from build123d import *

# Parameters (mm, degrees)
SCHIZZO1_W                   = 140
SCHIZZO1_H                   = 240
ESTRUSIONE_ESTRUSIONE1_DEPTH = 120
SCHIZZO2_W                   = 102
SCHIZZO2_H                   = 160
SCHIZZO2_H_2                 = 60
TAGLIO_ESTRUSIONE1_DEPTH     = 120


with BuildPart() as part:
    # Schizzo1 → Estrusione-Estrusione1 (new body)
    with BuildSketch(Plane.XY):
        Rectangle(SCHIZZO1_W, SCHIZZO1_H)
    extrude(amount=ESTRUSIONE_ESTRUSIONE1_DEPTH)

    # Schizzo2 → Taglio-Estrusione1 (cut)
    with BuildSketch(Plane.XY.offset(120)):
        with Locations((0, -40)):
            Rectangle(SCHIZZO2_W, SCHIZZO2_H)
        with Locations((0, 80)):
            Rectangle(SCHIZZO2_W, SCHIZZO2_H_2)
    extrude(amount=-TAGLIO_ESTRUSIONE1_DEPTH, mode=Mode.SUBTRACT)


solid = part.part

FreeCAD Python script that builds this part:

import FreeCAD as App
import Part
import Sketcher

V = App.Vector
Q = App.Units.Quantity

doc = App.newDocument("Part")
body = doc.addObject("PartDesign::Body", "Body")

sketch1 = body.newObject("Sketcher::SketchObject", "Sketch")
sketch1.AttachmentSupport = (doc.getObject("XY_Plane"), [""])
sketch1.MapMode = "FlatFace"
sketch1.addGeometry([
    Part.LineSegment(V(-70, 120, 0), V(-70, -120, 0)),
    Part.LineSegment(V(-70, -120, 0), V(70, -120, 0)),
    Part.LineSegment(V(70, -120, 0), V(70, 120, 0)),
    Part.LineSegment(V(70, 120, 0), V(-70, 120, 0)),
], False)
sketch1.addConstraint([
    Sketcher.Constraint("Coincident", 0, 2, 1, 1),
    Sketcher.Constraint("Coincident", 1, 2, 2, 1),
    Sketcher.Constraint("Coincident", 2, 2, 3, 1),
    Sketcher.Constraint("Coincident", 3, 2, 0, 1),
    Sketcher.Constraint("Vertical", 0),
    Sketcher.Constraint("Horizontal", 1),
    Sketcher.Constraint("Vertical", 2),
    Sketcher.Constraint("Horizontal", 3),
    Sketcher.Constraint("Symmetric", 0, 2, 2, 2, -1, 1),
    Sketcher.Constraint("DistanceX", 1, 1, 1, 2, Q("140 mm")),
    Sketcher.Constraint("DistanceY", 0, 2, 0, 1, Q("240 mm")),
])
pad1 = body.newObject("PartDesign::Pad", "Pad")
pad1.Profile = sketch1
pad1.Length = 120

sketch2 = body.newObject("Sketcher::SketchObject", "Sketch001")
sketch2.AttachmentSupport = (doc.getObject("XY_Plane"), [""])
sketch2.MapMode = "FlatFace"
sketch2.AttachmentOffset = App.Placement(V(0, 0, 120), App.Rotation())
sketch2.addGeometry([
    Part.LineSegment(V(-51, 40, 0), V(-51, -120, 0)),
    Part.LineSegment(V(-51, -120, 0), V(51, -120, 0)),
    Part.LineSegment(V(51, -120, 0), V(51, 40, 0)),
    Part.LineSegment(V(51, 40, 0), V(-51, 40, 0)),
    Part.LineSegment(V(-51, 110, 0), V(-51, 50, 0)),
    Part.LineSegment(V(-51, 50, 0), V(51, 50, 0)),
    Part.LineSegment(V(51, 50, 0), V(51, 110, 0)),
    Part.LineSegment(V(51, 110, 0), V(-51, 110, 0)),
], False)
sketch2.addConstraint([
    Sketcher.Constraint("Coincident", 0, 2, 1, 1),
    Sketcher.Constraint("Coincident", 1, 2, 2, 1),
    Sketcher.Constraint("Coincident", 2, 2, 3, 1),
    Sketcher.Constraint("Coincident", 3, 2, 0, 1),
    Sketcher.Constraint("Coincident", 4, 2, 5, 1),
    Sketcher.Constraint("Coincident", 5, 2, 6, 1),
    Sketcher.Constraint("Coincident", 6, 2, 7, 1),
    Sketcher.Constraint("Coincident", 7, 2, 4, 1),
    Sketcher.Constraint("Vertical", 0),
    Sketcher.Constraint("Horizontal", 1),
    Sketcher.Constraint("Vertical", 2),
    Sketcher.Constraint("Horizontal", 3),
    Sketcher.Constraint("Vertical", 4),
    Sketcher.Constraint("Horizontal", 5),
    Sketcher.Constraint("Vertical", 6),
    Sketcher.Constraint("Horizontal", 7),
    Sketcher.Constraint("Vertical", 3, 2, 4, 2),
    Sketcher.Constraint("Vertical", 2, 2, 5, 2),
    Sketcher.Constraint("DistanceX", 1, 1, 1, 2, Q("102 mm")),
    Sketcher.Constraint("DistanceY", 0, 2, 0, 1, Q("160 mm")),
    Sketcher.Constraint("DistanceY", 4, 2, 4, 1, Q("60 mm")),
    Sketcher.Constraint("DistanceX", 0, 2, -1, 1, Q("51 mm")),
    Sketcher.Constraint("DistanceY", 0, 2, -1, 1, Q("120 mm")),
    Sketcher.Constraint("DistanceY", -1, 1, 4, 2, Q("50 mm")),
])
pocket1 = body.newObject("PartDesign::Pocket", "Pocket")
pocket1.Profile = sketch2
pocket1.Length = 120

doc.recompute()
